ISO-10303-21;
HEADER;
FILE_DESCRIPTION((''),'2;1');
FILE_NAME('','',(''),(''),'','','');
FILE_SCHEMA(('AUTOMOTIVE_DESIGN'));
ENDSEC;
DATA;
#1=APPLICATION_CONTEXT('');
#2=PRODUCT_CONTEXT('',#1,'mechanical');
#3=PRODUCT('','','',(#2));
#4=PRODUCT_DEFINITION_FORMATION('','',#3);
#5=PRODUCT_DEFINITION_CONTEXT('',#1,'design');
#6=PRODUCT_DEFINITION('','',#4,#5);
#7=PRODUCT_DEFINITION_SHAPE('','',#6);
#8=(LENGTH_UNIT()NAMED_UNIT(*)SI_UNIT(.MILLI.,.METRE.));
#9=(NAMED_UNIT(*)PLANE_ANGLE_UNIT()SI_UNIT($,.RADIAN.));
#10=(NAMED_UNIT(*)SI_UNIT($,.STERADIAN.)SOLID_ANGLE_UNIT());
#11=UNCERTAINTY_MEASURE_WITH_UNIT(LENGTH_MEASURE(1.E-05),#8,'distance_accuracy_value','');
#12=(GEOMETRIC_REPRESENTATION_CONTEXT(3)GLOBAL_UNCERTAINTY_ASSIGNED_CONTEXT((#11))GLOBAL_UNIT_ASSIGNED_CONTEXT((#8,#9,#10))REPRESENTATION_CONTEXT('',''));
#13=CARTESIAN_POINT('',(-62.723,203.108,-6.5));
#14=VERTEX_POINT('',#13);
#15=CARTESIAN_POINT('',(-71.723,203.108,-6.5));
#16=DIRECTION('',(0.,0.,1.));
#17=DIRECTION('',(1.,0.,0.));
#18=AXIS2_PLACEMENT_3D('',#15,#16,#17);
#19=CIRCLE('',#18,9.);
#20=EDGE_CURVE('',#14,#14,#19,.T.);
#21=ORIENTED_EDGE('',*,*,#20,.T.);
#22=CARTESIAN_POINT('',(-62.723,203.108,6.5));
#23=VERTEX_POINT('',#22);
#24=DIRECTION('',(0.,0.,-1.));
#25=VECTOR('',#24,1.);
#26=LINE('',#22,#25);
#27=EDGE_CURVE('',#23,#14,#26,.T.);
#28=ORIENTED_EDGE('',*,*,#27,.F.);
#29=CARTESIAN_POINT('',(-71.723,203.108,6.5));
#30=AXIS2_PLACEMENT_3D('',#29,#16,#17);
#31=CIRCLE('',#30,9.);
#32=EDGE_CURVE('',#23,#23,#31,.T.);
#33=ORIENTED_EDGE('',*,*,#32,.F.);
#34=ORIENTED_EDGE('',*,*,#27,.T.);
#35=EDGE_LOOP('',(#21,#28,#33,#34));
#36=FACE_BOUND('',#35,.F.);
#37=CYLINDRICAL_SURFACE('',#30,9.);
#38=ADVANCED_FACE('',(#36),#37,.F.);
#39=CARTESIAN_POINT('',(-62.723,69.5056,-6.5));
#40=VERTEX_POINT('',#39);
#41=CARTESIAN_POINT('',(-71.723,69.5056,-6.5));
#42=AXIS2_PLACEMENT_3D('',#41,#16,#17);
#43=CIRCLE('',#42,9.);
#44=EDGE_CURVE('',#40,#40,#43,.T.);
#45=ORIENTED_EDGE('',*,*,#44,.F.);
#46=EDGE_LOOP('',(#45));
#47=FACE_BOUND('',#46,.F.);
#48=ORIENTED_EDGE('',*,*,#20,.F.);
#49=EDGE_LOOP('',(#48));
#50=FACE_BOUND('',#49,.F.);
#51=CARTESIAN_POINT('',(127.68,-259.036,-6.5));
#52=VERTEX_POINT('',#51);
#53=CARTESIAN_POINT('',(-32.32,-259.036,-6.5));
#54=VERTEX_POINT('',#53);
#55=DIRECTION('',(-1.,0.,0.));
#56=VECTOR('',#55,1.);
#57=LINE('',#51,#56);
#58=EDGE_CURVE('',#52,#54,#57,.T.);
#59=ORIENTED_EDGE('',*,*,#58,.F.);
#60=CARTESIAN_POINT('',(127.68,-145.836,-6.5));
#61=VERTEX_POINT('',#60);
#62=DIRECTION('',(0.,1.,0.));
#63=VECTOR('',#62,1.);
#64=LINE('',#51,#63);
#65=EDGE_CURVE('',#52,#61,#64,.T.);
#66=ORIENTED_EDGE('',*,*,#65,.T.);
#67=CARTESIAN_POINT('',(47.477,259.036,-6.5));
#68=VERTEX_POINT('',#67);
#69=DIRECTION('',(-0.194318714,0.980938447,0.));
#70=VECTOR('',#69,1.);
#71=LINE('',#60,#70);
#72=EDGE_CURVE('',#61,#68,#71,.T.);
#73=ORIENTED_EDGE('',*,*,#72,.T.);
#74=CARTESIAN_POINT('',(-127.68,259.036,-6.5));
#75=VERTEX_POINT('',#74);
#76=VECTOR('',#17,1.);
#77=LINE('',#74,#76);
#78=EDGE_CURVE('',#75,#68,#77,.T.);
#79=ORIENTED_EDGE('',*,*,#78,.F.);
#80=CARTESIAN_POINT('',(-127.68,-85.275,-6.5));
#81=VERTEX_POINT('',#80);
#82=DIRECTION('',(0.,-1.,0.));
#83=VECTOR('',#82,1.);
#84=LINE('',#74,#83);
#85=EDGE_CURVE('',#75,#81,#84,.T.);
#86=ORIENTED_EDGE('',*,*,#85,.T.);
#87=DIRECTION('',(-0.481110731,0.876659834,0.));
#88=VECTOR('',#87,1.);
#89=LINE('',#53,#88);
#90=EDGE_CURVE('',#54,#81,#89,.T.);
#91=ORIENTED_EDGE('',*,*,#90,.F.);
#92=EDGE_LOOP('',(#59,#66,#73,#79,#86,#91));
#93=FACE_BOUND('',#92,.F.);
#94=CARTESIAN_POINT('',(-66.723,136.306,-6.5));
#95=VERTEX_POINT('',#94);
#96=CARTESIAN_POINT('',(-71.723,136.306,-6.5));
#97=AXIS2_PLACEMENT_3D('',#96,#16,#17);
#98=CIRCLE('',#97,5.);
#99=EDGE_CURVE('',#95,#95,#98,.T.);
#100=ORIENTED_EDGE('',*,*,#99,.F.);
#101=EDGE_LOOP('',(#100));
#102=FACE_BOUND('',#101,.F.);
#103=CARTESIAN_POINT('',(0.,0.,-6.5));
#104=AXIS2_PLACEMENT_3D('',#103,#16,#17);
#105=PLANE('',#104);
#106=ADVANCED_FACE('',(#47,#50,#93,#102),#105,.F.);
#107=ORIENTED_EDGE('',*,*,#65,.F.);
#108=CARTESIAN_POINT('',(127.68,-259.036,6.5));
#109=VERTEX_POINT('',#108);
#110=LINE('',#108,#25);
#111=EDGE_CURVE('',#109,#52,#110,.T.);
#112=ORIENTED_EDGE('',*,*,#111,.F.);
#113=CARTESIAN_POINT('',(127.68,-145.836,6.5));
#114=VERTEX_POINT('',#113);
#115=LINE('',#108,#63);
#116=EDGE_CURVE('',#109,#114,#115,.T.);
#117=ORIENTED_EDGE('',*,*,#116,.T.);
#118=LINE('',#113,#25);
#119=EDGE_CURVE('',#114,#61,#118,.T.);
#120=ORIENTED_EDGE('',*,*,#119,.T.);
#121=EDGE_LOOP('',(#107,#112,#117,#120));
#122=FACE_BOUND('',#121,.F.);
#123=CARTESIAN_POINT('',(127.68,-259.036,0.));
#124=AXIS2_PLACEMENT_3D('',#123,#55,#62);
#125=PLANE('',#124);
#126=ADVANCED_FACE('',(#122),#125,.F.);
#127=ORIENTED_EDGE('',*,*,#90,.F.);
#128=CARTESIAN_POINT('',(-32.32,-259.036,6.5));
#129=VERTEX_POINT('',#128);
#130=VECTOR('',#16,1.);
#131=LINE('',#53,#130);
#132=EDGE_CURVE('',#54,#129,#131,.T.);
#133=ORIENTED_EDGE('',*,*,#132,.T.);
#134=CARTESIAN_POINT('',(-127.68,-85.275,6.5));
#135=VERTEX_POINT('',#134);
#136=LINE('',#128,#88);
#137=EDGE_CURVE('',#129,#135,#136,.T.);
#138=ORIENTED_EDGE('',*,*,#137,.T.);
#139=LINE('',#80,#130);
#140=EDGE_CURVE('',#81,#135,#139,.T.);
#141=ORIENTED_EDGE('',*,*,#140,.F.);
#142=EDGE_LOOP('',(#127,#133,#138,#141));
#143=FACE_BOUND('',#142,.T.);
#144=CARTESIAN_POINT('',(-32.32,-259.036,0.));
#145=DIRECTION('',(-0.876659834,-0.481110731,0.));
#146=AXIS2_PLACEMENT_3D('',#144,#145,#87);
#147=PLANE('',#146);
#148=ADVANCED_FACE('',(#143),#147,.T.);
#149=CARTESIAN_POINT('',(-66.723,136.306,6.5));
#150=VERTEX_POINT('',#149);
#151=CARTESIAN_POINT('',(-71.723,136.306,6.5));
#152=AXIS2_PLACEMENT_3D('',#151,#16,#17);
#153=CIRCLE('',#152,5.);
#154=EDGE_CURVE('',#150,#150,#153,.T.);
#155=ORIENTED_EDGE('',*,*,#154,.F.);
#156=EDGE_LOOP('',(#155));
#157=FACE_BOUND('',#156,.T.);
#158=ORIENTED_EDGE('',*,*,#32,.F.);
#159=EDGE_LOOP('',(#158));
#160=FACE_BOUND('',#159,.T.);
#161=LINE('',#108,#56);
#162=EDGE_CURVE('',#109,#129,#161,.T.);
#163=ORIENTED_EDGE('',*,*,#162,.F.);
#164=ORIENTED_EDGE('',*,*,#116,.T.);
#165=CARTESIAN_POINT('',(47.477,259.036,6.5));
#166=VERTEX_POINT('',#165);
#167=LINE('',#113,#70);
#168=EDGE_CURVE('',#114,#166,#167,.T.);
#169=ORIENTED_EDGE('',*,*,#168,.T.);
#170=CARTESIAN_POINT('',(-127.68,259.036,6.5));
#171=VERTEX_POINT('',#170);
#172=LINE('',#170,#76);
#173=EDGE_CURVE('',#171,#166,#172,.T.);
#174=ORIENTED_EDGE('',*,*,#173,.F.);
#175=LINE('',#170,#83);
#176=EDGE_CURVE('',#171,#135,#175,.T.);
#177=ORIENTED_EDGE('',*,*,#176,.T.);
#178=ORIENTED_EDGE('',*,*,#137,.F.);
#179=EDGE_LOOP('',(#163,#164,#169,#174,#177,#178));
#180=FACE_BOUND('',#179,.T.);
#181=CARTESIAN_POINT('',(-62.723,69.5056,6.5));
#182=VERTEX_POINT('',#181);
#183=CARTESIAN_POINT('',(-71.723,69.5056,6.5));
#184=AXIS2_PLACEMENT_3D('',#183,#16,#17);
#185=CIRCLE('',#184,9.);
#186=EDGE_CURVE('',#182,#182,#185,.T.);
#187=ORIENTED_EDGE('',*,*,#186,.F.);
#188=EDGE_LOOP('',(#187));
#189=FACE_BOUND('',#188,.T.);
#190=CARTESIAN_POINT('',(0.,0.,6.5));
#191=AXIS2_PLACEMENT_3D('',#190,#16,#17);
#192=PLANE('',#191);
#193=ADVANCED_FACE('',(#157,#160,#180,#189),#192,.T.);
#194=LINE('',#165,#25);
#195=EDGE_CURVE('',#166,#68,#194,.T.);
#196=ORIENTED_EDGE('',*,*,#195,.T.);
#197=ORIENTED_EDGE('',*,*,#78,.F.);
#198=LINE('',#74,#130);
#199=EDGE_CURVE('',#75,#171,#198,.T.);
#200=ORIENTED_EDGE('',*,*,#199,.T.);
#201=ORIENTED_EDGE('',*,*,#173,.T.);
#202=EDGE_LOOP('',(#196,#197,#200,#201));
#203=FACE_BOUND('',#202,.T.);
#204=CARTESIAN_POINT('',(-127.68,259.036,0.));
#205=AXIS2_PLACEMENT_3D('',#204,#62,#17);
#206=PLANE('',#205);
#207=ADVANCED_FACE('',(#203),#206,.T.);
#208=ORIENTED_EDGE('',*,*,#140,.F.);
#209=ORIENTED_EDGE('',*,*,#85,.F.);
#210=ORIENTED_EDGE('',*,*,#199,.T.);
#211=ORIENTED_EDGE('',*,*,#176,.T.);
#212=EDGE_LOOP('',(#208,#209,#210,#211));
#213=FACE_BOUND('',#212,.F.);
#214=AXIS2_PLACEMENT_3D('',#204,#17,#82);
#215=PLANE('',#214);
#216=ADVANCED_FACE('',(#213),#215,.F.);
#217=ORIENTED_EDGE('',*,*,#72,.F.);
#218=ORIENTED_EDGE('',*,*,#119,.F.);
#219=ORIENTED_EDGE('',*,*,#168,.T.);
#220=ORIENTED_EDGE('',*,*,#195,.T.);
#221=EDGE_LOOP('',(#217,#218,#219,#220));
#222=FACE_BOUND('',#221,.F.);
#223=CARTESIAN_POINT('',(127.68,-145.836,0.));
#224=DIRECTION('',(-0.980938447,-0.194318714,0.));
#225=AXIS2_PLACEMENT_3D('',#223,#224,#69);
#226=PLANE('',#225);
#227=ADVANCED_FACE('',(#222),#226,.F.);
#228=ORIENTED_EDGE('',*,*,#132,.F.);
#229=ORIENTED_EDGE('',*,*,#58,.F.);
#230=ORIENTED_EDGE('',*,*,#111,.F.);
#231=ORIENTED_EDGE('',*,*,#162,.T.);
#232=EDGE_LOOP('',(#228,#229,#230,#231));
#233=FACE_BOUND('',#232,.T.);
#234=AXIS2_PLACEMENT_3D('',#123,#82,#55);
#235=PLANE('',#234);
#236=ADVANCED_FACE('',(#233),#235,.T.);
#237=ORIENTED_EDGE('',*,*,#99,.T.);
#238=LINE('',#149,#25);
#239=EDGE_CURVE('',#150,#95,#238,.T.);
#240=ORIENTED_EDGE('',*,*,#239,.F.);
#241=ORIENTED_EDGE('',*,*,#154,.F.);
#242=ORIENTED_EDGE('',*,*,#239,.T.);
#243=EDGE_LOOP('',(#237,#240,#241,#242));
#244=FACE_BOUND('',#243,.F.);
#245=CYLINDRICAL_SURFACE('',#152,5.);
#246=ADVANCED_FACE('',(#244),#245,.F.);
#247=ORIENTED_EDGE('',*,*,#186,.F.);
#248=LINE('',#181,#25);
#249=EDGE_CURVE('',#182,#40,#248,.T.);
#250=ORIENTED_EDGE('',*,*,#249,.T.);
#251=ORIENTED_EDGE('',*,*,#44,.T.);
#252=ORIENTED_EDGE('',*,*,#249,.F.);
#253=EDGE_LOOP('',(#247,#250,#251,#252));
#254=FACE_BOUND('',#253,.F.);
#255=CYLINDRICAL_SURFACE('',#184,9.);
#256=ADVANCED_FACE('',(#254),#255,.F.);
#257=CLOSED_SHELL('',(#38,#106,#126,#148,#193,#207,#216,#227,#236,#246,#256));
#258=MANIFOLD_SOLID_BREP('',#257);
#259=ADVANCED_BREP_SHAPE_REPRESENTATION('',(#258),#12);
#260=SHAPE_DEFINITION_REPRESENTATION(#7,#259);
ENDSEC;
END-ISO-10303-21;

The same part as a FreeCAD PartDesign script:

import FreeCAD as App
import Part
import Sketcher
from FreeCAD import Vector


def add_polygon(sketch, points):
    """Adds a closed chain of lines whose ends are joined by coincident constraints."""
    first, n = sketch.GeometryCount, len(points)
    for a, b in zip(points, points[1:] + points[:1]):
        sketch.addGeometry(Part.LineSegment(App.Vector(*a, 0), App.Vector(*b, 0)), False)
    for i in range(n):
        sketch.addConstraint(Sketcher.Constraint("Coincident", first + i, 2, first + (i + 1) % n, 1))

doc = App.newDocument("Part")
body = doc.addObject("PartDesign::Body", "Body")

# Sketch on XY plane
sketch1 = doc.addObject("Sketcher::SketchObject", "Sketch")
body.addObject(sketch1)
sketch1.AttachmentSupport = (doc.XY_Plane, [""])
sketch1.MapMode = "FlatFace"
add_polygon(sketch1, [(47, 259), (-128, 259), (-128, -85), (-32, -259), (128, -259), (128, -146)])  # lines 0-5
sketch1.addConstraint([
    Sketcher.Constraint("Horizontal", 0),
    Sketcher.Constraint("Vertical", 1),
    Sketcher.Constraint("Horizontal", 3),
    Sketcher.Constraint("Vertical", 4),
    Sketcher.Constraint("Symmetric", 0, 2, 3, 2, -1, 1),
    Sketcher.Constraint("DistanceX", 3, 1, 3, 2, 160.0),
    Sketcher.Constraint("DistanceY", 4, 1, 4, 2, 113.2),
    Sketcher.Constraint("DistanceX", 0, 2, 0, 1, 175.157),
    Sketcher.Constraint("DistanceY", 1, 2, 1, 1, 344.311),
    Sketcher.Constraint("DistanceX", 0, 2, -1, 1, 127.68),
    Sketcher.Constraint("Distance", 2, 198.208),
])
pad1 = doc.addObject("PartDesign::Pad", "Pad")
body.addObject(pad1)
pad1.Profile = sketch1
pad1.Length = 13
pad1.Midplane = True

# Sketch on XY plane
sketch2 = doc.addObject("Sketcher::SketchObject", "Sketch001")
body.addObject(sketch2)
sketch2.AttachmentSupport = (doc.XY_Plane, [""])
sketch2.MapMode = "FlatFace"
sketch2.AttachmentOffset = App.Placement(Vector(0, 0, 6.5), App.Rotation())
sketch2.addGeometry([
    Part.Circle(Vector(-72, 203, 0), Vector(0, 0, 1), 9),
    Part.Circle(Vector(-72, 70, 0), Vector(0, 0, 1), 9),
    Part.Circle(Vector(-72, 136, 0), Vector(0, 0, 1), 5),
], False)
sketch2.addConstraint([
    Sketcher.Constraint("Equal", 0, 1),
    Sketcher.Constraint("Vertical", 0, 3, 1, 3),
    Sketcher.Constraint("Vertical", 1, 3, 2, 3),
    Sketcher.Constraint("Diameter", 2, 10.0),
    Sketcher.Constraint("Diameter", 0, 18.0),
    Sketcher.Constraint("DistanceY", 2, 3, 0, 3, 66.802),
    Sketcher.Constraint("DistanceY", 1, 3, 2, 3, 66.8004),
    Sketcher.Constraint("DistanceX", 0, 3, -1, 1, 71.723),
    Sketcher.Constraint("DistanceY", -1, 1, 0, 3, 203.108),
])
pocket1 = doc.addObject("PartDesign::Pocket", "Pocket")
body.addObject(pocket1)
pocket1.Profile = sketch2
pocket1.Length = 25.4

doc.recompute()
